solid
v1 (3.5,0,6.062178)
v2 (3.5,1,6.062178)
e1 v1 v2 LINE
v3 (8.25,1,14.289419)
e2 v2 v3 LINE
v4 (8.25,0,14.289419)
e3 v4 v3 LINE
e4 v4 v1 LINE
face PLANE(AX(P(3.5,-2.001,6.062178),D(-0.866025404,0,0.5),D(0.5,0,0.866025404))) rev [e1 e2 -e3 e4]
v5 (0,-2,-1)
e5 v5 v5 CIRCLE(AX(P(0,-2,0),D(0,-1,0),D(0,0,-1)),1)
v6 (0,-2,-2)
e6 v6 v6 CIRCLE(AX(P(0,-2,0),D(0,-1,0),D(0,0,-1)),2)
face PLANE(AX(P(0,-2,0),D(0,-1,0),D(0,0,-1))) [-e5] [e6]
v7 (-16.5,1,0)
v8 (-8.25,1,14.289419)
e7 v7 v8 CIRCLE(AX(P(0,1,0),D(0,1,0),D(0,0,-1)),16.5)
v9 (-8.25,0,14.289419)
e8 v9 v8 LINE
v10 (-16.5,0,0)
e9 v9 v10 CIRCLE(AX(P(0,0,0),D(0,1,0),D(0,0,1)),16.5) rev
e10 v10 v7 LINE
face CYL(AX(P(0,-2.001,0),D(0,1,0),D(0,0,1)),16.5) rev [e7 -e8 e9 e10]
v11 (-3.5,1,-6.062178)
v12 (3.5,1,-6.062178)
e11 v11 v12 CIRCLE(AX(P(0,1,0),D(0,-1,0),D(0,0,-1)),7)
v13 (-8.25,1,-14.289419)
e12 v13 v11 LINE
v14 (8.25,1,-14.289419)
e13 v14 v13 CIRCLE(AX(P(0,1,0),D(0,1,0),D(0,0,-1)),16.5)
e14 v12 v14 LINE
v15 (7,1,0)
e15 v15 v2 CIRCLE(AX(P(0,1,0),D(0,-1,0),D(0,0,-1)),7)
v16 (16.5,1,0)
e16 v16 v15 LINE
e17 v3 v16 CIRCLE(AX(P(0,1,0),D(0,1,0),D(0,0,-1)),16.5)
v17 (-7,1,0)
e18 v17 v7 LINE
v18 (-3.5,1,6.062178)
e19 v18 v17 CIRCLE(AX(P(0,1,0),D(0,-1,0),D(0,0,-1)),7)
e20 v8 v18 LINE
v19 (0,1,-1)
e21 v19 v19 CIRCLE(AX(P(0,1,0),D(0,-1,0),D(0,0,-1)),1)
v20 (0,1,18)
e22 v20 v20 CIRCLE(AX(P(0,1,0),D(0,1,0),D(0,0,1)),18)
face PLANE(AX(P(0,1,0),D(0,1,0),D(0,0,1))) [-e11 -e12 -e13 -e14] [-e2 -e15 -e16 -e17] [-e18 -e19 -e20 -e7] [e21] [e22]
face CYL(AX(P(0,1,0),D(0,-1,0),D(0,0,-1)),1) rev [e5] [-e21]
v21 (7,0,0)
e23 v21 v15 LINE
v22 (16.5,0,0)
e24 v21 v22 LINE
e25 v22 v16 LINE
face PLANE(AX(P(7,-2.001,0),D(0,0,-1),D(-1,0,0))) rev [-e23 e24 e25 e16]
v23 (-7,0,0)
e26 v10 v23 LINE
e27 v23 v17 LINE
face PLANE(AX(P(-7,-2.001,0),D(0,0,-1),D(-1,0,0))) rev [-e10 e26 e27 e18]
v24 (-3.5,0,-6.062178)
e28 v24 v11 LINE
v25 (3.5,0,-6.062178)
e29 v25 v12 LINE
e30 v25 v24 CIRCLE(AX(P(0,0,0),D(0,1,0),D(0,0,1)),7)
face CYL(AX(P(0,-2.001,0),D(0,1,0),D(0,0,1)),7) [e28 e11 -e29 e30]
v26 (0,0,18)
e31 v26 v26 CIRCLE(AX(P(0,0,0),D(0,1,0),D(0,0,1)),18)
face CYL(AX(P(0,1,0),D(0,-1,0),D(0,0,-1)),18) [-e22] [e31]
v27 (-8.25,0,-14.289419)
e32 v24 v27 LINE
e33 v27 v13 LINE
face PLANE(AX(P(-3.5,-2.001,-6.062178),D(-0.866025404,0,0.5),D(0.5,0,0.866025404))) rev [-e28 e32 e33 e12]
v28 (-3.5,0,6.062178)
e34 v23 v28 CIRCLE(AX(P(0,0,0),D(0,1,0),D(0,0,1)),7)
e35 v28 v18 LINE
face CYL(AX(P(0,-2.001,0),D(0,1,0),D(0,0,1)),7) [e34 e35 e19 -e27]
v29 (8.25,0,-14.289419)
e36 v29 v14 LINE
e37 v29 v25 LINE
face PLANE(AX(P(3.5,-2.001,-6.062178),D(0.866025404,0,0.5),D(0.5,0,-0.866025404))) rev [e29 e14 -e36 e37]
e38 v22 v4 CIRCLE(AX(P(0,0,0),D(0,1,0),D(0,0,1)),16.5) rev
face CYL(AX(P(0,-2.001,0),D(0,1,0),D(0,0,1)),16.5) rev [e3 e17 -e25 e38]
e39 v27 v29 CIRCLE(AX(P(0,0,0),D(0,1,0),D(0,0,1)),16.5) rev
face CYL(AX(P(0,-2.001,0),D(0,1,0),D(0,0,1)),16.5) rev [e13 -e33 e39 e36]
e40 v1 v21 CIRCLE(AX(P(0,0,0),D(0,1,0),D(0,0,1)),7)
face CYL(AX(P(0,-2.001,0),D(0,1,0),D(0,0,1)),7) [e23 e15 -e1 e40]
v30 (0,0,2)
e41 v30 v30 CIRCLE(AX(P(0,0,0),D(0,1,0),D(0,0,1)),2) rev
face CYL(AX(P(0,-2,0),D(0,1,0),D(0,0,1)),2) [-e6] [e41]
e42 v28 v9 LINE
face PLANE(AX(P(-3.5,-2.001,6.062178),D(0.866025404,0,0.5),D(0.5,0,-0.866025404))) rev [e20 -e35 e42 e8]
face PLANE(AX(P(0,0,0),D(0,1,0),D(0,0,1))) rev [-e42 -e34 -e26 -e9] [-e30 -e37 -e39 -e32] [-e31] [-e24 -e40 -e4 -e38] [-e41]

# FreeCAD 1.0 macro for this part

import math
import FreeCAD as App
import Part
import Sketcher

V = App.Vector
Q = App.Units.Quantity

doc = App.newDocument("Part")
body = doc.addObject("PartDesign::Body", "Body")

sketch1 = body.newObject("Sketcher::SketchObject", "Sketch")
sketch1.AttachmentSupport = (doc.getObject("XZ_Plane"), [""])
sketch1.MapMode = "FlatFace"
sketch1.addGeometry(Part.Circle(V(0, 0, 0), V(0, 0, 1), 18), False)
sketch1.addConstraint(Sketcher.Constraint("Coincident", 0, 3, -1, 1))
sketch1.addConstraint(Sketcher.Constraint("Diameter", 0, 36.0))
pad1 = body.newObject("PartDesign::Pad", "Pad")
pad1.Profile = sketch1
pad1.Length = 1
pad1.Reversed = True

sketch2 = body.newObject("Sketcher::SketchObject", "Sketch001")
sketch2.AttachmentSupport = (doc.getObject("XZ_Plane"), [""])
sketch2.MapMode = "FlatFace"
sketch2.addGeometry(Part.Circle(V(0, 0, 0), V(0, 0, 1), 2), False)
sketch2.addConstraint(Sketcher.Constraint("Coincident", 0, 3, -1, 1))
sketch2.addConstraint(Sketcher.Constraint("Diameter", 0, 4.0))
pad2 = body.newObject("PartDesign::Pad", "Pad001")
pad2.Profile = sketch2
pad2.Length = 2

sketch3 = body.newObject("Sketcher::SketchObject", "Sketch002")
sketch3.AttachmentSupport = (doc.getObject("XZ_Plane"), [""])
sketch3.MapMode = "FlatFace"
sketch3.AttachmentOffset = App.Placement(V(0, 0, 2), App.Rotation())
sketch3.addGeometry(Part.Circle(V(0, 0, 0), V(0, 0, 1), 1), False)
sketch3.addConstraint(Sketcher.Constraint("Coincident", 0, 3, -1, 1))
sketch3.addConstraint(Sketcher.Constraint("Diameter", 0, 2.0))
pocket1 = body.newObject("PartDesign::Pocket", "Pocket")
pocket1.Profile = sketch3
pocket1.Type = "ThroughAll"

sketch4 = body.newObject("Sketcher::SketchObject", "Sketch003")
sketch4.AttachmentSupport = (doc.getObject("XZ_Plane"), [""])
sketch4.MapMode = "FlatFace"
sketch4.AttachmentOffset = App.Placement(V(0, 0, -1), App.Rotation())
sketch4.addGeometry(Part.LineSegment(V(-8, -14, 0), V(-4, -6, 0)), False)
sketch4.addGeometry(Part.ArcOfCircle(Part.Circle(V(0, 0, 0), V(0, 0, 1), 7), math.radians(-120), math.radians(-60)), False)
sketch4.addGeometry(Part.LineSegment(V(4, -6, 0), V(8, -14, 0)), False)
sketch4.addGeometry(Part.ArcOfCircle(Part.Circle(V(0, 0, 0), V(0, 0, 1), 16), math.radians(-120), math.radians(-60)), False)
sketch4.addConstraint(Sketcher.Constraint("Coincident", 0, 2, 1, 1))
sketch4.addConstraint(Sketcher.Constraint("Coincident", 1, 2, 2, 1))
sketch4.addConstraint(Sketcher.Constraint("Coincident", 2, 2, 3, 2))
sketch4.addConstraint(Sketcher.Constraint("Coincident", 3, 1, 0, 1))
sketch4.addConstraint(Sketcher.Constraint("Coincident", 1, 3, -1, 1))
sketch4.addConstraint(Sketcher.Constraint("Coincident", 3, 3, -1, 1))
sketch4.addConstraint(Sketcher.Constraint("Horizontal", 0, 2, 1, 2))
sketch4.addConstraint(Sketcher.Constraint("Horizontal", 2, 2, 3, 1))
sketch4.addConstraint(Sketcher.Constraint("Radius", 1, 7.0))
sketch4.addConstraint(Sketcher.Constraint("Radius", 3, 16.5))
sketch4.addConstraint(Sketcher.Constraint("Angle", 0, Q("60 deg")))
sketch4.addConstraint(Sketcher.Constraint("DistanceX", 0, 2, 1, 2, 7.0))
pocket2 = body.newObject("PartDesign::Pocket", "Pocket001")
pocket2.Profile = sketch4
pocket2.Type = "UpToFirst"
pocket2.Reversed = True

sketch5 = body.newObject("Sketcher::SketchObject", "Sketch004")
sketch5.AttachmentSupport = (doc.getObject("XZ_Plane"), [""])
sketch5.MapMode = "FlatFace"
sketch5.AttachmentOffset = App.Placement(V(0, 0, -1), App.Rotation())
sketch5.addGeometry(Part.LineSegment(V(16, 0, 0), V(7, 0, 0)), False)
sketch5.addGeometry(Part.ArcOfCircle(Part.Circle(V(0, 0, 0), V(0, 0, 1), 7), math.radians(0), math.radians(60)), False)
sketch5.addGeometry(Part.LineSegment(V(4, 6, 0), V(8, 14, 0)), False)
sketch5.addGeometry(Part.ArcOfCircle(Part.Circle(V(0, 0, 0), V(0, 0, 1), 17), math.radians(0), math.radians(60)), False)
sketch5.addConstraint(Sketcher.Constraint("Coincident", 0, 2, 1, 1))
sketch5.addConstraint(Sketcher.Constraint("Coincident", 1, 2, 2, 1))
sketch5.addConstraint(Sketcher.Constraint("Coincident", 2, 2, 3, 2))
sketch5.addConstraint(Sketcher.Constraint("Coincident", 3, 1, 0, 1))
sketch5.addConstraint(Sketcher.Constraint("Horizontal", 0))
sketch5.addConstraint(Sketcher.Constraint("Coincident", 1, 3, -1, 1))
sketch5.addConstraint(Sketcher.Constraint("Coincident", 3, 3, -1, 1))
sketch5.addConstraint(Sketcher.Constraint("PointOnObject", 0, 2, -1))
sketch5.addConstraint(Sketcher.Constraint("Radius", 1, 7.0))
sketch5.addConstraint(Sketcher.Constraint("Radius", 3, 16.5))
sketch5.addConstraint(Sketcher.Constraint("Angle", 2, Q("60 deg")))
sketch5.addConstraint(Sketcher.Constraint("DistanceX", 1, 2, 3, 1, 13.0))
pocket3 = body.newObject("PartDesign::Pocket", "Pocket002")
pocket3.Profile = sketch5
pocket3.Type = "UpToFirst"
pocket3.Reversed = True

sketch6 = body.newObject("Sketcher::SketchObject", "Sketch005")
sketch6.AttachmentSupport = (doc.getObject("XZ_Plane"), [""])
sketch6.MapMode = "FlatFace"
sketch6.AttachmentOffset = App.Placement(V(0, 0, -1), App.Rotation())
sketch6.addGeometry(Part.LineSegment(V(-8, 14, 0), V(-4, 6, 0)), False)
sketch6.addGeometry(Part.ArcOfCircle(Part.Circle(V(0, 0, 0), V(0, 0, 1), 7), math.radians(120), math.radians(180)), False)
sketch6.addGeometry(Part.LineSegment(V(-7, 0, 0), V(-16, 0, 0)), False)
sketch6.addGeometry(Part.ArcOfCircle(Part.Circle(V(0, 0, 0), V(0, 0, 1), 17), math.radians(120), math.radians(180)), False)
sketch6.addConstraint(Sketcher.Constraint("Coincident", 0, 2, 1, 1))
sketch6.addConstraint(Sketcher.Constraint("Coincident", 1, 2, 2, 1))
sketch6.addConstraint(Sketcher.Constraint("Coincident", 2, 2, 3, 2))
sketch6.addConstraint(Sketcher.Constraint("Coincident", 3, 1, 0, 1))
sketch6.addConstraint(Sketcher.Constraint("Horizontal", 2))
sketch6.addConstraint(Sketcher.Constraint("Coincident", 1, 3, -1, 1))
sketch6.addConstraint(Sketcher.Constraint("Coincident", 3, 3, -1, 1))
sketch6.addConstraint(Sketcher.Constraint("PointOnObject", 1, 2, -1))
sketch6.addConstraint(Sketcher.Constraint("Radius", 1, 7.0))
sketch6.addConstraint(Sketcher.Constraint("Radius", 3, 16.5))
sketch6.addConstraint(Sketcher.Constraint("Angle", 0, Q("-60 deg")))
sketch6.addConstraint(Sketcher.Constraint("DistanceX", 2, 2, 0, 2, 13.0))
pocket4 = body.newObject("PartDesign::Pocket", "Pocket003")
pocket4.Profile = sketch6
pocket4.Type = "UpToFirst"
pocket4.Reversed = True

doc.recompute()
